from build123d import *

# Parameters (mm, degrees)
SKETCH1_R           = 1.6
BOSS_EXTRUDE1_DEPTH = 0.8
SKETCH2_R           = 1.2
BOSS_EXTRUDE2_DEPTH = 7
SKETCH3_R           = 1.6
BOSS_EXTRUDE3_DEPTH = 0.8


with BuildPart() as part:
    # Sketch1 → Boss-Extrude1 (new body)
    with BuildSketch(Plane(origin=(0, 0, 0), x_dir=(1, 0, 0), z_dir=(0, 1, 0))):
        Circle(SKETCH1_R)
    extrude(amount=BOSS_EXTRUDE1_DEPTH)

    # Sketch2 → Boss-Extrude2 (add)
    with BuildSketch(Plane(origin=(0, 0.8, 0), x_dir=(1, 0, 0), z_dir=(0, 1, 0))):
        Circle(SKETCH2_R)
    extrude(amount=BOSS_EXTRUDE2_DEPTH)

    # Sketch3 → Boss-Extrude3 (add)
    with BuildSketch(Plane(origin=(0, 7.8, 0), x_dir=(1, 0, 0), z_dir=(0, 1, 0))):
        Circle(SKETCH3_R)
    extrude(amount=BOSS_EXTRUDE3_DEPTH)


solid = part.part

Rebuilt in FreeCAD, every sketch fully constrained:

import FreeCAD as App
import Part
import Sketcher
from FreeCAD import Vector
Q = App.Units.Quantity

doc = App.newDocument("Part")
body = doc.addObject("PartDesign::Body", "Body")

sketch1 = body.newObject("Sketcher::SketchObject", "Sketch")
sketch1.AttachmentSupport = (doc.getObject("XZ_Plane"), [""])
sketch1.MapMode = "FlatFace"
sketch1.addGeometry(Part.Circle(Vector(0, 0, 0), Vector(0, 0, 1), 1.6), False)
sketch1.addConstraint(Sketcher.Constraint("Coincident", 0, 3, -1, 1))
sketch1.addConstraint(Sketcher.Constraint("Diameter", 0, Q("3.2 mm")))
pad1 = body.newObject("PartDesign::Pad", "Pad")
pad1.Profile = sketch1
pad1.Length = 0.8
pad1.Reversed = True

sketch2 = body.newObject("Sketcher::SketchObject", "Sketch001")
sketch2.AttachmentSupport = (doc.getObject("XZ_Plane"), [""])
sketch2.MapMode = "FlatFace"
sketch2.AttachmentOffset = App.Placement(Vector(0, 0, -0.8), App.Rotation())
sketch2.addGeometry(Part.Circle(Vector(0, 0, 0), Vector(0, 0, 1), 1.2), False)
sketch2.addConstraint(Sketcher.Constraint("Coincident", 0, 3, -1, 1))
sketch2.addConstraint(Sketcher.Constraint("Diameter", 0, Q("2.4 mm")))
pad2 = body.newObject("PartDesign::Pad", "Pad001")
pad2.Profile = sketch2
pad2.Length = 7
pad2.Reversed = True

sketch3 = body.newObject("Sketcher::SketchObject", "Sketch002")
sketch3.AttachmentSupport = (doc.getObject("XZ_Plane"), [""])
sketch3.MapMode = "FlatFace"
sketch3.AttachmentOffset = App.Placement(Vector(0, 0, -7.8), App.Rotation())
sketch3.addGeometry(Part.Circle(Vector(0, 0, 0), Vector(0, 0, 1), 1.6), False)
sketch3.addConstraint(Sketcher.Constraint("Coincident", 0, 3, -1, 1))
sketch3.addConstraint(Sketcher.Constraint("Diameter", 0, Q("3.2 mm")))
pad3 = body.newObject("PartDesign::Pad", "Pad002")
pad3.Profile = sketch3
pad3.Length = 0.8
pad3.Reversed = True

doc.recompute()
